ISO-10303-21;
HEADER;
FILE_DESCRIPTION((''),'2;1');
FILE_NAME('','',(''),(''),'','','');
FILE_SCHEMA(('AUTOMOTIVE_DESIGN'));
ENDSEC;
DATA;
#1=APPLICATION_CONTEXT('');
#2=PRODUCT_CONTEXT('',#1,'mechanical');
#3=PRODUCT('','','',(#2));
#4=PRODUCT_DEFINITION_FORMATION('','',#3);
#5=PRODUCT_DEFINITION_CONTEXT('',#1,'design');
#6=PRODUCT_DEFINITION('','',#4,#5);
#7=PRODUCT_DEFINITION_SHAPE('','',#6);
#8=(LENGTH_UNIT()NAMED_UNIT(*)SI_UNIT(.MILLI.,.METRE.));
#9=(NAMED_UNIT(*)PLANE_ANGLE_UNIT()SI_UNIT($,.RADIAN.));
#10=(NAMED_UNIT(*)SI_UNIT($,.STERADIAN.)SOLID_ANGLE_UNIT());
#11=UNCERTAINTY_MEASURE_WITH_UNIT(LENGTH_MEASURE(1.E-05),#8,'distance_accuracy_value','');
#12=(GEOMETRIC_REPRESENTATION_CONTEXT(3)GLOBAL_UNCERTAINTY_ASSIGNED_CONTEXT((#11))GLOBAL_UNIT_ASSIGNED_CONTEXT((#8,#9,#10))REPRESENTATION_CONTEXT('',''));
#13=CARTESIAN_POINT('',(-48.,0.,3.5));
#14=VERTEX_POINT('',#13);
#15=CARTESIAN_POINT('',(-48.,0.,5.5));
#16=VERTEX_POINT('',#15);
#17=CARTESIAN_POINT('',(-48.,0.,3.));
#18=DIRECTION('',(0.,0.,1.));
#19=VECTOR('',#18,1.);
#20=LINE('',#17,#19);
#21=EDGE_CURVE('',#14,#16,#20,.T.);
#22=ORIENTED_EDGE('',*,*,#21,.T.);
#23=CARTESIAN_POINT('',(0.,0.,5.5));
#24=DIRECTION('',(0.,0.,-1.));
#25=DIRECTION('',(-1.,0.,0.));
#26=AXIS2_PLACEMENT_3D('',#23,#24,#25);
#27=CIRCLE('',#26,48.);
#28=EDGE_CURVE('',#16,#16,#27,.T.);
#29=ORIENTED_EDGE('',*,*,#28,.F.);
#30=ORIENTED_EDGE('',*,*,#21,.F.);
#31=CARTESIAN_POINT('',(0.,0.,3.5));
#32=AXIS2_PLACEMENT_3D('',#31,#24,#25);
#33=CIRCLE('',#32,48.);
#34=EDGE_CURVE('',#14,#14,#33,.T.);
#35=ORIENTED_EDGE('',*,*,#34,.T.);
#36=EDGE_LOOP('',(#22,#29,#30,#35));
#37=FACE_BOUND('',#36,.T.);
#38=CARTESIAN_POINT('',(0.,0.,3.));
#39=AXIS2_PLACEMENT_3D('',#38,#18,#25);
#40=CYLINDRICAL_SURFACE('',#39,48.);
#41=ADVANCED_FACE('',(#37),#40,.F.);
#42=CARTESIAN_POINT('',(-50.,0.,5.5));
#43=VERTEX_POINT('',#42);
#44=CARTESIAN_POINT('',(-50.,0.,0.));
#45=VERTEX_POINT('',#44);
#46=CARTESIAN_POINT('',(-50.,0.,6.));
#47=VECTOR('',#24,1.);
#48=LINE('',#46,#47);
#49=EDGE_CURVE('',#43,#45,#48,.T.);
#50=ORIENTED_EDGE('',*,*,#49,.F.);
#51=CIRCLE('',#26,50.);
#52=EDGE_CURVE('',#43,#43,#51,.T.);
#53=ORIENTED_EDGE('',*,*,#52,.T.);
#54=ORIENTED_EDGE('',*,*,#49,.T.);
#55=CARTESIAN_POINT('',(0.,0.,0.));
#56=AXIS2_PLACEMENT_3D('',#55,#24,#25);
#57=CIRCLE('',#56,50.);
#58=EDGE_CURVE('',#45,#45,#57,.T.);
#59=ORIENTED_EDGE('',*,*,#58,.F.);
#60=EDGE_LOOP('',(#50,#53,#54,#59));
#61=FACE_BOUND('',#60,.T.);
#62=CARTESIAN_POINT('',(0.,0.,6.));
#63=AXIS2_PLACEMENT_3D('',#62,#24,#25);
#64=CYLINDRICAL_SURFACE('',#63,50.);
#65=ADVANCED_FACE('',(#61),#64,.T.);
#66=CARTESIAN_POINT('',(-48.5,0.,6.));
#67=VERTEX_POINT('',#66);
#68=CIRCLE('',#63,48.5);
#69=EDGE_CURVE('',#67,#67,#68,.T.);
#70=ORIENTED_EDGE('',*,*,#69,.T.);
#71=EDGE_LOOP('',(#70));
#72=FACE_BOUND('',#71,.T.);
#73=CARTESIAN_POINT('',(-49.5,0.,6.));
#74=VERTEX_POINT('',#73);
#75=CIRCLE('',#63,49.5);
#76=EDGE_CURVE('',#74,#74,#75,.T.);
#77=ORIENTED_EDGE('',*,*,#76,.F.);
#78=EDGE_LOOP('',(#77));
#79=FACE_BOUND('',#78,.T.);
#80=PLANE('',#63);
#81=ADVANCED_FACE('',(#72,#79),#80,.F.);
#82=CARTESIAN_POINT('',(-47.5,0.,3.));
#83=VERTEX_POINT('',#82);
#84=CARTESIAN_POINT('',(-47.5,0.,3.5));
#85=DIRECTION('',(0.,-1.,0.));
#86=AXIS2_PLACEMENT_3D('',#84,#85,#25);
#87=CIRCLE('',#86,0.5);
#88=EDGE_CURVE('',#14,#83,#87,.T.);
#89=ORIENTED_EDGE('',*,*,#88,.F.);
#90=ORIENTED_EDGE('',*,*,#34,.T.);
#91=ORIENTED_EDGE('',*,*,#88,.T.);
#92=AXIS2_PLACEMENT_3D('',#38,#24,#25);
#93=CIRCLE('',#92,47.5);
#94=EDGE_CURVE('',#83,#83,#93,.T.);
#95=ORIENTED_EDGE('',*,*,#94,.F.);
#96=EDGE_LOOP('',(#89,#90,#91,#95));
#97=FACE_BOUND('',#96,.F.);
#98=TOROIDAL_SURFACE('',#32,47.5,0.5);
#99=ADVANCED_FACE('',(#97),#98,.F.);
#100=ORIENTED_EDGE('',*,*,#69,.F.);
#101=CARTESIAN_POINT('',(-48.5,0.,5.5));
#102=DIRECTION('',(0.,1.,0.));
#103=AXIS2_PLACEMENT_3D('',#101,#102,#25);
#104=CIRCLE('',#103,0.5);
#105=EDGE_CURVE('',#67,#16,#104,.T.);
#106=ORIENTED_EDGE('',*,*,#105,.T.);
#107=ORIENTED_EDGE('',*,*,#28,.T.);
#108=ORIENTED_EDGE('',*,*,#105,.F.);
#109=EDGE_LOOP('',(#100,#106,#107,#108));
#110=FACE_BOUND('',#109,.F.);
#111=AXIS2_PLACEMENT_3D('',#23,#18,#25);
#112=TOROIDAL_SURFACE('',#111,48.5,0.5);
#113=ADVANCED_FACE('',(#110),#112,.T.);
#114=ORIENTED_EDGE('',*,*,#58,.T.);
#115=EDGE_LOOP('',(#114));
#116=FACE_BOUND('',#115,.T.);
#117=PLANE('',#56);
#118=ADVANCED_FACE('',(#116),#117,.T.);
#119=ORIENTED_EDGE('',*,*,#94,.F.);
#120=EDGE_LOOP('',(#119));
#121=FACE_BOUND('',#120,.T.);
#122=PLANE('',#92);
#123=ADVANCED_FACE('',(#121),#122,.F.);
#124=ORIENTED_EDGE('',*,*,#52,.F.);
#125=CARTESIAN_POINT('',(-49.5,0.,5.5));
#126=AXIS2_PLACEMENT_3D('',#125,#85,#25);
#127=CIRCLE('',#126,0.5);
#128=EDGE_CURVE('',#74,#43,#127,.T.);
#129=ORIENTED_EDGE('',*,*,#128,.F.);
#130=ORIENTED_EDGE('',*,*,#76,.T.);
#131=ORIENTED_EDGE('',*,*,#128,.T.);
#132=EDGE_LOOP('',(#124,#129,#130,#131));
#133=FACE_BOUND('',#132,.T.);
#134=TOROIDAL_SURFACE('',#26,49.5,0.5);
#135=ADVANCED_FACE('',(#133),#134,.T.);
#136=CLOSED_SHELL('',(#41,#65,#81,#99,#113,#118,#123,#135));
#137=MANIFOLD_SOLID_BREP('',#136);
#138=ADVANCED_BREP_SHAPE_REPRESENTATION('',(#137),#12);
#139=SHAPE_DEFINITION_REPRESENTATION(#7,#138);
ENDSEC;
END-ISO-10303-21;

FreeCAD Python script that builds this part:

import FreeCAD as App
import Part
import Sketcher

V = App.Vector
Q = App.Units.Quantity


def edges_at(feature, points):
    """Names of the edges that pass closest to the given points."""
    edges = feature.Shape.Edges
    near = lambda p: min(range(len(edges)), key=lambda i: edges[i].distToShape(Part.Vertex(*p))[0])
    return sorted({f"Edge{near(p) + 1}" for p in points})

doc = App.newDocument("Part")
body = doc.addObject("PartDesign::Body", "Body")

# Sketch on XZ plane
sketch1 = body.newObject("Sketcher::SketchObject", "Sketch")
sketch1.AttachmentSupport = (doc.getObject("XZ_Plane"), [""])
sketch1.MapMode = "FlatFace"
sketch1.addGeometry([
    Part.LineSegment(V(-50, 0, 0), V(0, 0, 0)),  # 0
    Part.LineSegment(V(0, 0, 0), V(0, 3, 0)),  # 1
    Part.LineSegment(V(0, 3, 0), V(-48, 3, 0)),  # 2
    Part.LineSegment(V(-48, 3, 0), V(-48, 6, 0)),  # 3
    Part.LineSegment(V(-48, 6, 0), V(-50, 6, 0)),  # 4
    Part.LineSegment(V(-50, 6, 0), V(-50, 0, 0)),  # 5
], False)
sketch1.addConstraint([
    Sketcher.Constraint("Coincident", 0, 2, 1, 1),
    Sketcher.Constraint("Coincident", 1, 2, 2, 1),
    Sketcher.Constraint("Coincident", 2, 2, 3, 1),
    Sketcher.Constraint("Coincident", 3, 2, 4, 1),
    Sketcher.Constraint("Coincident", 4, 2, 5, 1),
    Sketcher.Constraint("Coincident", 5, 2, 0, 1),
    Sketcher.Constraint("Horizontal", 0),
    Sketcher.Constraint("Vertical", 1),
    Sketcher.Constraint("Horizontal", 2),
    Sketcher.Constraint("Vertical", 3),
    Sketcher.Constraint("Horizontal", 4),
    Sketcher.Constraint("Vertical", 5),
    Sketcher.Constraint("Coincident", 0, 2, -1, 1),
    Sketcher.Constraint("Equal", 1, 3),
    Sketcher.Constraint("DistanceX", 0, 1, 0, 2, Q("50 mm")),
    Sketcher.Constraint("DistanceX", 2, 2, 2, 1, Q("48 mm")),
    Sketcher.Constraint("DistanceY", 1, 1, 1, 2, Q("3 mm")),
])
revolution = body.newObject("PartDesign::Revolution", "Revolution")
revolution.Profile = sketch1
revolution.ReferenceAxis = (sketch1, ["V_Axis"])
revolution.Angle = 360
doc.recompute()

fillet = body.newObject("PartDesign::Fillet", "Fillet")
fillet.Base = (revolution, edges_at(revolution, [(50, 0, 6)]))
fillet.Radius = 0.5
doc.recompute()

fillet2 = body.newObject("PartDesign::Fillet", "Fillet001")
fillet2.Base = (fillet, edges_at(fillet, [(48, 0, 6)]))
fillet2.Radius = 0.5
doc.recompute()

fillet3 = body.newObject("PartDesign::Fillet", "Fillet002")
fillet3.Base = (fillet2, edges_at(fillet2, [(48, 0, 3)]))
fillet3.Radius = 0.5

doc.recompute()
